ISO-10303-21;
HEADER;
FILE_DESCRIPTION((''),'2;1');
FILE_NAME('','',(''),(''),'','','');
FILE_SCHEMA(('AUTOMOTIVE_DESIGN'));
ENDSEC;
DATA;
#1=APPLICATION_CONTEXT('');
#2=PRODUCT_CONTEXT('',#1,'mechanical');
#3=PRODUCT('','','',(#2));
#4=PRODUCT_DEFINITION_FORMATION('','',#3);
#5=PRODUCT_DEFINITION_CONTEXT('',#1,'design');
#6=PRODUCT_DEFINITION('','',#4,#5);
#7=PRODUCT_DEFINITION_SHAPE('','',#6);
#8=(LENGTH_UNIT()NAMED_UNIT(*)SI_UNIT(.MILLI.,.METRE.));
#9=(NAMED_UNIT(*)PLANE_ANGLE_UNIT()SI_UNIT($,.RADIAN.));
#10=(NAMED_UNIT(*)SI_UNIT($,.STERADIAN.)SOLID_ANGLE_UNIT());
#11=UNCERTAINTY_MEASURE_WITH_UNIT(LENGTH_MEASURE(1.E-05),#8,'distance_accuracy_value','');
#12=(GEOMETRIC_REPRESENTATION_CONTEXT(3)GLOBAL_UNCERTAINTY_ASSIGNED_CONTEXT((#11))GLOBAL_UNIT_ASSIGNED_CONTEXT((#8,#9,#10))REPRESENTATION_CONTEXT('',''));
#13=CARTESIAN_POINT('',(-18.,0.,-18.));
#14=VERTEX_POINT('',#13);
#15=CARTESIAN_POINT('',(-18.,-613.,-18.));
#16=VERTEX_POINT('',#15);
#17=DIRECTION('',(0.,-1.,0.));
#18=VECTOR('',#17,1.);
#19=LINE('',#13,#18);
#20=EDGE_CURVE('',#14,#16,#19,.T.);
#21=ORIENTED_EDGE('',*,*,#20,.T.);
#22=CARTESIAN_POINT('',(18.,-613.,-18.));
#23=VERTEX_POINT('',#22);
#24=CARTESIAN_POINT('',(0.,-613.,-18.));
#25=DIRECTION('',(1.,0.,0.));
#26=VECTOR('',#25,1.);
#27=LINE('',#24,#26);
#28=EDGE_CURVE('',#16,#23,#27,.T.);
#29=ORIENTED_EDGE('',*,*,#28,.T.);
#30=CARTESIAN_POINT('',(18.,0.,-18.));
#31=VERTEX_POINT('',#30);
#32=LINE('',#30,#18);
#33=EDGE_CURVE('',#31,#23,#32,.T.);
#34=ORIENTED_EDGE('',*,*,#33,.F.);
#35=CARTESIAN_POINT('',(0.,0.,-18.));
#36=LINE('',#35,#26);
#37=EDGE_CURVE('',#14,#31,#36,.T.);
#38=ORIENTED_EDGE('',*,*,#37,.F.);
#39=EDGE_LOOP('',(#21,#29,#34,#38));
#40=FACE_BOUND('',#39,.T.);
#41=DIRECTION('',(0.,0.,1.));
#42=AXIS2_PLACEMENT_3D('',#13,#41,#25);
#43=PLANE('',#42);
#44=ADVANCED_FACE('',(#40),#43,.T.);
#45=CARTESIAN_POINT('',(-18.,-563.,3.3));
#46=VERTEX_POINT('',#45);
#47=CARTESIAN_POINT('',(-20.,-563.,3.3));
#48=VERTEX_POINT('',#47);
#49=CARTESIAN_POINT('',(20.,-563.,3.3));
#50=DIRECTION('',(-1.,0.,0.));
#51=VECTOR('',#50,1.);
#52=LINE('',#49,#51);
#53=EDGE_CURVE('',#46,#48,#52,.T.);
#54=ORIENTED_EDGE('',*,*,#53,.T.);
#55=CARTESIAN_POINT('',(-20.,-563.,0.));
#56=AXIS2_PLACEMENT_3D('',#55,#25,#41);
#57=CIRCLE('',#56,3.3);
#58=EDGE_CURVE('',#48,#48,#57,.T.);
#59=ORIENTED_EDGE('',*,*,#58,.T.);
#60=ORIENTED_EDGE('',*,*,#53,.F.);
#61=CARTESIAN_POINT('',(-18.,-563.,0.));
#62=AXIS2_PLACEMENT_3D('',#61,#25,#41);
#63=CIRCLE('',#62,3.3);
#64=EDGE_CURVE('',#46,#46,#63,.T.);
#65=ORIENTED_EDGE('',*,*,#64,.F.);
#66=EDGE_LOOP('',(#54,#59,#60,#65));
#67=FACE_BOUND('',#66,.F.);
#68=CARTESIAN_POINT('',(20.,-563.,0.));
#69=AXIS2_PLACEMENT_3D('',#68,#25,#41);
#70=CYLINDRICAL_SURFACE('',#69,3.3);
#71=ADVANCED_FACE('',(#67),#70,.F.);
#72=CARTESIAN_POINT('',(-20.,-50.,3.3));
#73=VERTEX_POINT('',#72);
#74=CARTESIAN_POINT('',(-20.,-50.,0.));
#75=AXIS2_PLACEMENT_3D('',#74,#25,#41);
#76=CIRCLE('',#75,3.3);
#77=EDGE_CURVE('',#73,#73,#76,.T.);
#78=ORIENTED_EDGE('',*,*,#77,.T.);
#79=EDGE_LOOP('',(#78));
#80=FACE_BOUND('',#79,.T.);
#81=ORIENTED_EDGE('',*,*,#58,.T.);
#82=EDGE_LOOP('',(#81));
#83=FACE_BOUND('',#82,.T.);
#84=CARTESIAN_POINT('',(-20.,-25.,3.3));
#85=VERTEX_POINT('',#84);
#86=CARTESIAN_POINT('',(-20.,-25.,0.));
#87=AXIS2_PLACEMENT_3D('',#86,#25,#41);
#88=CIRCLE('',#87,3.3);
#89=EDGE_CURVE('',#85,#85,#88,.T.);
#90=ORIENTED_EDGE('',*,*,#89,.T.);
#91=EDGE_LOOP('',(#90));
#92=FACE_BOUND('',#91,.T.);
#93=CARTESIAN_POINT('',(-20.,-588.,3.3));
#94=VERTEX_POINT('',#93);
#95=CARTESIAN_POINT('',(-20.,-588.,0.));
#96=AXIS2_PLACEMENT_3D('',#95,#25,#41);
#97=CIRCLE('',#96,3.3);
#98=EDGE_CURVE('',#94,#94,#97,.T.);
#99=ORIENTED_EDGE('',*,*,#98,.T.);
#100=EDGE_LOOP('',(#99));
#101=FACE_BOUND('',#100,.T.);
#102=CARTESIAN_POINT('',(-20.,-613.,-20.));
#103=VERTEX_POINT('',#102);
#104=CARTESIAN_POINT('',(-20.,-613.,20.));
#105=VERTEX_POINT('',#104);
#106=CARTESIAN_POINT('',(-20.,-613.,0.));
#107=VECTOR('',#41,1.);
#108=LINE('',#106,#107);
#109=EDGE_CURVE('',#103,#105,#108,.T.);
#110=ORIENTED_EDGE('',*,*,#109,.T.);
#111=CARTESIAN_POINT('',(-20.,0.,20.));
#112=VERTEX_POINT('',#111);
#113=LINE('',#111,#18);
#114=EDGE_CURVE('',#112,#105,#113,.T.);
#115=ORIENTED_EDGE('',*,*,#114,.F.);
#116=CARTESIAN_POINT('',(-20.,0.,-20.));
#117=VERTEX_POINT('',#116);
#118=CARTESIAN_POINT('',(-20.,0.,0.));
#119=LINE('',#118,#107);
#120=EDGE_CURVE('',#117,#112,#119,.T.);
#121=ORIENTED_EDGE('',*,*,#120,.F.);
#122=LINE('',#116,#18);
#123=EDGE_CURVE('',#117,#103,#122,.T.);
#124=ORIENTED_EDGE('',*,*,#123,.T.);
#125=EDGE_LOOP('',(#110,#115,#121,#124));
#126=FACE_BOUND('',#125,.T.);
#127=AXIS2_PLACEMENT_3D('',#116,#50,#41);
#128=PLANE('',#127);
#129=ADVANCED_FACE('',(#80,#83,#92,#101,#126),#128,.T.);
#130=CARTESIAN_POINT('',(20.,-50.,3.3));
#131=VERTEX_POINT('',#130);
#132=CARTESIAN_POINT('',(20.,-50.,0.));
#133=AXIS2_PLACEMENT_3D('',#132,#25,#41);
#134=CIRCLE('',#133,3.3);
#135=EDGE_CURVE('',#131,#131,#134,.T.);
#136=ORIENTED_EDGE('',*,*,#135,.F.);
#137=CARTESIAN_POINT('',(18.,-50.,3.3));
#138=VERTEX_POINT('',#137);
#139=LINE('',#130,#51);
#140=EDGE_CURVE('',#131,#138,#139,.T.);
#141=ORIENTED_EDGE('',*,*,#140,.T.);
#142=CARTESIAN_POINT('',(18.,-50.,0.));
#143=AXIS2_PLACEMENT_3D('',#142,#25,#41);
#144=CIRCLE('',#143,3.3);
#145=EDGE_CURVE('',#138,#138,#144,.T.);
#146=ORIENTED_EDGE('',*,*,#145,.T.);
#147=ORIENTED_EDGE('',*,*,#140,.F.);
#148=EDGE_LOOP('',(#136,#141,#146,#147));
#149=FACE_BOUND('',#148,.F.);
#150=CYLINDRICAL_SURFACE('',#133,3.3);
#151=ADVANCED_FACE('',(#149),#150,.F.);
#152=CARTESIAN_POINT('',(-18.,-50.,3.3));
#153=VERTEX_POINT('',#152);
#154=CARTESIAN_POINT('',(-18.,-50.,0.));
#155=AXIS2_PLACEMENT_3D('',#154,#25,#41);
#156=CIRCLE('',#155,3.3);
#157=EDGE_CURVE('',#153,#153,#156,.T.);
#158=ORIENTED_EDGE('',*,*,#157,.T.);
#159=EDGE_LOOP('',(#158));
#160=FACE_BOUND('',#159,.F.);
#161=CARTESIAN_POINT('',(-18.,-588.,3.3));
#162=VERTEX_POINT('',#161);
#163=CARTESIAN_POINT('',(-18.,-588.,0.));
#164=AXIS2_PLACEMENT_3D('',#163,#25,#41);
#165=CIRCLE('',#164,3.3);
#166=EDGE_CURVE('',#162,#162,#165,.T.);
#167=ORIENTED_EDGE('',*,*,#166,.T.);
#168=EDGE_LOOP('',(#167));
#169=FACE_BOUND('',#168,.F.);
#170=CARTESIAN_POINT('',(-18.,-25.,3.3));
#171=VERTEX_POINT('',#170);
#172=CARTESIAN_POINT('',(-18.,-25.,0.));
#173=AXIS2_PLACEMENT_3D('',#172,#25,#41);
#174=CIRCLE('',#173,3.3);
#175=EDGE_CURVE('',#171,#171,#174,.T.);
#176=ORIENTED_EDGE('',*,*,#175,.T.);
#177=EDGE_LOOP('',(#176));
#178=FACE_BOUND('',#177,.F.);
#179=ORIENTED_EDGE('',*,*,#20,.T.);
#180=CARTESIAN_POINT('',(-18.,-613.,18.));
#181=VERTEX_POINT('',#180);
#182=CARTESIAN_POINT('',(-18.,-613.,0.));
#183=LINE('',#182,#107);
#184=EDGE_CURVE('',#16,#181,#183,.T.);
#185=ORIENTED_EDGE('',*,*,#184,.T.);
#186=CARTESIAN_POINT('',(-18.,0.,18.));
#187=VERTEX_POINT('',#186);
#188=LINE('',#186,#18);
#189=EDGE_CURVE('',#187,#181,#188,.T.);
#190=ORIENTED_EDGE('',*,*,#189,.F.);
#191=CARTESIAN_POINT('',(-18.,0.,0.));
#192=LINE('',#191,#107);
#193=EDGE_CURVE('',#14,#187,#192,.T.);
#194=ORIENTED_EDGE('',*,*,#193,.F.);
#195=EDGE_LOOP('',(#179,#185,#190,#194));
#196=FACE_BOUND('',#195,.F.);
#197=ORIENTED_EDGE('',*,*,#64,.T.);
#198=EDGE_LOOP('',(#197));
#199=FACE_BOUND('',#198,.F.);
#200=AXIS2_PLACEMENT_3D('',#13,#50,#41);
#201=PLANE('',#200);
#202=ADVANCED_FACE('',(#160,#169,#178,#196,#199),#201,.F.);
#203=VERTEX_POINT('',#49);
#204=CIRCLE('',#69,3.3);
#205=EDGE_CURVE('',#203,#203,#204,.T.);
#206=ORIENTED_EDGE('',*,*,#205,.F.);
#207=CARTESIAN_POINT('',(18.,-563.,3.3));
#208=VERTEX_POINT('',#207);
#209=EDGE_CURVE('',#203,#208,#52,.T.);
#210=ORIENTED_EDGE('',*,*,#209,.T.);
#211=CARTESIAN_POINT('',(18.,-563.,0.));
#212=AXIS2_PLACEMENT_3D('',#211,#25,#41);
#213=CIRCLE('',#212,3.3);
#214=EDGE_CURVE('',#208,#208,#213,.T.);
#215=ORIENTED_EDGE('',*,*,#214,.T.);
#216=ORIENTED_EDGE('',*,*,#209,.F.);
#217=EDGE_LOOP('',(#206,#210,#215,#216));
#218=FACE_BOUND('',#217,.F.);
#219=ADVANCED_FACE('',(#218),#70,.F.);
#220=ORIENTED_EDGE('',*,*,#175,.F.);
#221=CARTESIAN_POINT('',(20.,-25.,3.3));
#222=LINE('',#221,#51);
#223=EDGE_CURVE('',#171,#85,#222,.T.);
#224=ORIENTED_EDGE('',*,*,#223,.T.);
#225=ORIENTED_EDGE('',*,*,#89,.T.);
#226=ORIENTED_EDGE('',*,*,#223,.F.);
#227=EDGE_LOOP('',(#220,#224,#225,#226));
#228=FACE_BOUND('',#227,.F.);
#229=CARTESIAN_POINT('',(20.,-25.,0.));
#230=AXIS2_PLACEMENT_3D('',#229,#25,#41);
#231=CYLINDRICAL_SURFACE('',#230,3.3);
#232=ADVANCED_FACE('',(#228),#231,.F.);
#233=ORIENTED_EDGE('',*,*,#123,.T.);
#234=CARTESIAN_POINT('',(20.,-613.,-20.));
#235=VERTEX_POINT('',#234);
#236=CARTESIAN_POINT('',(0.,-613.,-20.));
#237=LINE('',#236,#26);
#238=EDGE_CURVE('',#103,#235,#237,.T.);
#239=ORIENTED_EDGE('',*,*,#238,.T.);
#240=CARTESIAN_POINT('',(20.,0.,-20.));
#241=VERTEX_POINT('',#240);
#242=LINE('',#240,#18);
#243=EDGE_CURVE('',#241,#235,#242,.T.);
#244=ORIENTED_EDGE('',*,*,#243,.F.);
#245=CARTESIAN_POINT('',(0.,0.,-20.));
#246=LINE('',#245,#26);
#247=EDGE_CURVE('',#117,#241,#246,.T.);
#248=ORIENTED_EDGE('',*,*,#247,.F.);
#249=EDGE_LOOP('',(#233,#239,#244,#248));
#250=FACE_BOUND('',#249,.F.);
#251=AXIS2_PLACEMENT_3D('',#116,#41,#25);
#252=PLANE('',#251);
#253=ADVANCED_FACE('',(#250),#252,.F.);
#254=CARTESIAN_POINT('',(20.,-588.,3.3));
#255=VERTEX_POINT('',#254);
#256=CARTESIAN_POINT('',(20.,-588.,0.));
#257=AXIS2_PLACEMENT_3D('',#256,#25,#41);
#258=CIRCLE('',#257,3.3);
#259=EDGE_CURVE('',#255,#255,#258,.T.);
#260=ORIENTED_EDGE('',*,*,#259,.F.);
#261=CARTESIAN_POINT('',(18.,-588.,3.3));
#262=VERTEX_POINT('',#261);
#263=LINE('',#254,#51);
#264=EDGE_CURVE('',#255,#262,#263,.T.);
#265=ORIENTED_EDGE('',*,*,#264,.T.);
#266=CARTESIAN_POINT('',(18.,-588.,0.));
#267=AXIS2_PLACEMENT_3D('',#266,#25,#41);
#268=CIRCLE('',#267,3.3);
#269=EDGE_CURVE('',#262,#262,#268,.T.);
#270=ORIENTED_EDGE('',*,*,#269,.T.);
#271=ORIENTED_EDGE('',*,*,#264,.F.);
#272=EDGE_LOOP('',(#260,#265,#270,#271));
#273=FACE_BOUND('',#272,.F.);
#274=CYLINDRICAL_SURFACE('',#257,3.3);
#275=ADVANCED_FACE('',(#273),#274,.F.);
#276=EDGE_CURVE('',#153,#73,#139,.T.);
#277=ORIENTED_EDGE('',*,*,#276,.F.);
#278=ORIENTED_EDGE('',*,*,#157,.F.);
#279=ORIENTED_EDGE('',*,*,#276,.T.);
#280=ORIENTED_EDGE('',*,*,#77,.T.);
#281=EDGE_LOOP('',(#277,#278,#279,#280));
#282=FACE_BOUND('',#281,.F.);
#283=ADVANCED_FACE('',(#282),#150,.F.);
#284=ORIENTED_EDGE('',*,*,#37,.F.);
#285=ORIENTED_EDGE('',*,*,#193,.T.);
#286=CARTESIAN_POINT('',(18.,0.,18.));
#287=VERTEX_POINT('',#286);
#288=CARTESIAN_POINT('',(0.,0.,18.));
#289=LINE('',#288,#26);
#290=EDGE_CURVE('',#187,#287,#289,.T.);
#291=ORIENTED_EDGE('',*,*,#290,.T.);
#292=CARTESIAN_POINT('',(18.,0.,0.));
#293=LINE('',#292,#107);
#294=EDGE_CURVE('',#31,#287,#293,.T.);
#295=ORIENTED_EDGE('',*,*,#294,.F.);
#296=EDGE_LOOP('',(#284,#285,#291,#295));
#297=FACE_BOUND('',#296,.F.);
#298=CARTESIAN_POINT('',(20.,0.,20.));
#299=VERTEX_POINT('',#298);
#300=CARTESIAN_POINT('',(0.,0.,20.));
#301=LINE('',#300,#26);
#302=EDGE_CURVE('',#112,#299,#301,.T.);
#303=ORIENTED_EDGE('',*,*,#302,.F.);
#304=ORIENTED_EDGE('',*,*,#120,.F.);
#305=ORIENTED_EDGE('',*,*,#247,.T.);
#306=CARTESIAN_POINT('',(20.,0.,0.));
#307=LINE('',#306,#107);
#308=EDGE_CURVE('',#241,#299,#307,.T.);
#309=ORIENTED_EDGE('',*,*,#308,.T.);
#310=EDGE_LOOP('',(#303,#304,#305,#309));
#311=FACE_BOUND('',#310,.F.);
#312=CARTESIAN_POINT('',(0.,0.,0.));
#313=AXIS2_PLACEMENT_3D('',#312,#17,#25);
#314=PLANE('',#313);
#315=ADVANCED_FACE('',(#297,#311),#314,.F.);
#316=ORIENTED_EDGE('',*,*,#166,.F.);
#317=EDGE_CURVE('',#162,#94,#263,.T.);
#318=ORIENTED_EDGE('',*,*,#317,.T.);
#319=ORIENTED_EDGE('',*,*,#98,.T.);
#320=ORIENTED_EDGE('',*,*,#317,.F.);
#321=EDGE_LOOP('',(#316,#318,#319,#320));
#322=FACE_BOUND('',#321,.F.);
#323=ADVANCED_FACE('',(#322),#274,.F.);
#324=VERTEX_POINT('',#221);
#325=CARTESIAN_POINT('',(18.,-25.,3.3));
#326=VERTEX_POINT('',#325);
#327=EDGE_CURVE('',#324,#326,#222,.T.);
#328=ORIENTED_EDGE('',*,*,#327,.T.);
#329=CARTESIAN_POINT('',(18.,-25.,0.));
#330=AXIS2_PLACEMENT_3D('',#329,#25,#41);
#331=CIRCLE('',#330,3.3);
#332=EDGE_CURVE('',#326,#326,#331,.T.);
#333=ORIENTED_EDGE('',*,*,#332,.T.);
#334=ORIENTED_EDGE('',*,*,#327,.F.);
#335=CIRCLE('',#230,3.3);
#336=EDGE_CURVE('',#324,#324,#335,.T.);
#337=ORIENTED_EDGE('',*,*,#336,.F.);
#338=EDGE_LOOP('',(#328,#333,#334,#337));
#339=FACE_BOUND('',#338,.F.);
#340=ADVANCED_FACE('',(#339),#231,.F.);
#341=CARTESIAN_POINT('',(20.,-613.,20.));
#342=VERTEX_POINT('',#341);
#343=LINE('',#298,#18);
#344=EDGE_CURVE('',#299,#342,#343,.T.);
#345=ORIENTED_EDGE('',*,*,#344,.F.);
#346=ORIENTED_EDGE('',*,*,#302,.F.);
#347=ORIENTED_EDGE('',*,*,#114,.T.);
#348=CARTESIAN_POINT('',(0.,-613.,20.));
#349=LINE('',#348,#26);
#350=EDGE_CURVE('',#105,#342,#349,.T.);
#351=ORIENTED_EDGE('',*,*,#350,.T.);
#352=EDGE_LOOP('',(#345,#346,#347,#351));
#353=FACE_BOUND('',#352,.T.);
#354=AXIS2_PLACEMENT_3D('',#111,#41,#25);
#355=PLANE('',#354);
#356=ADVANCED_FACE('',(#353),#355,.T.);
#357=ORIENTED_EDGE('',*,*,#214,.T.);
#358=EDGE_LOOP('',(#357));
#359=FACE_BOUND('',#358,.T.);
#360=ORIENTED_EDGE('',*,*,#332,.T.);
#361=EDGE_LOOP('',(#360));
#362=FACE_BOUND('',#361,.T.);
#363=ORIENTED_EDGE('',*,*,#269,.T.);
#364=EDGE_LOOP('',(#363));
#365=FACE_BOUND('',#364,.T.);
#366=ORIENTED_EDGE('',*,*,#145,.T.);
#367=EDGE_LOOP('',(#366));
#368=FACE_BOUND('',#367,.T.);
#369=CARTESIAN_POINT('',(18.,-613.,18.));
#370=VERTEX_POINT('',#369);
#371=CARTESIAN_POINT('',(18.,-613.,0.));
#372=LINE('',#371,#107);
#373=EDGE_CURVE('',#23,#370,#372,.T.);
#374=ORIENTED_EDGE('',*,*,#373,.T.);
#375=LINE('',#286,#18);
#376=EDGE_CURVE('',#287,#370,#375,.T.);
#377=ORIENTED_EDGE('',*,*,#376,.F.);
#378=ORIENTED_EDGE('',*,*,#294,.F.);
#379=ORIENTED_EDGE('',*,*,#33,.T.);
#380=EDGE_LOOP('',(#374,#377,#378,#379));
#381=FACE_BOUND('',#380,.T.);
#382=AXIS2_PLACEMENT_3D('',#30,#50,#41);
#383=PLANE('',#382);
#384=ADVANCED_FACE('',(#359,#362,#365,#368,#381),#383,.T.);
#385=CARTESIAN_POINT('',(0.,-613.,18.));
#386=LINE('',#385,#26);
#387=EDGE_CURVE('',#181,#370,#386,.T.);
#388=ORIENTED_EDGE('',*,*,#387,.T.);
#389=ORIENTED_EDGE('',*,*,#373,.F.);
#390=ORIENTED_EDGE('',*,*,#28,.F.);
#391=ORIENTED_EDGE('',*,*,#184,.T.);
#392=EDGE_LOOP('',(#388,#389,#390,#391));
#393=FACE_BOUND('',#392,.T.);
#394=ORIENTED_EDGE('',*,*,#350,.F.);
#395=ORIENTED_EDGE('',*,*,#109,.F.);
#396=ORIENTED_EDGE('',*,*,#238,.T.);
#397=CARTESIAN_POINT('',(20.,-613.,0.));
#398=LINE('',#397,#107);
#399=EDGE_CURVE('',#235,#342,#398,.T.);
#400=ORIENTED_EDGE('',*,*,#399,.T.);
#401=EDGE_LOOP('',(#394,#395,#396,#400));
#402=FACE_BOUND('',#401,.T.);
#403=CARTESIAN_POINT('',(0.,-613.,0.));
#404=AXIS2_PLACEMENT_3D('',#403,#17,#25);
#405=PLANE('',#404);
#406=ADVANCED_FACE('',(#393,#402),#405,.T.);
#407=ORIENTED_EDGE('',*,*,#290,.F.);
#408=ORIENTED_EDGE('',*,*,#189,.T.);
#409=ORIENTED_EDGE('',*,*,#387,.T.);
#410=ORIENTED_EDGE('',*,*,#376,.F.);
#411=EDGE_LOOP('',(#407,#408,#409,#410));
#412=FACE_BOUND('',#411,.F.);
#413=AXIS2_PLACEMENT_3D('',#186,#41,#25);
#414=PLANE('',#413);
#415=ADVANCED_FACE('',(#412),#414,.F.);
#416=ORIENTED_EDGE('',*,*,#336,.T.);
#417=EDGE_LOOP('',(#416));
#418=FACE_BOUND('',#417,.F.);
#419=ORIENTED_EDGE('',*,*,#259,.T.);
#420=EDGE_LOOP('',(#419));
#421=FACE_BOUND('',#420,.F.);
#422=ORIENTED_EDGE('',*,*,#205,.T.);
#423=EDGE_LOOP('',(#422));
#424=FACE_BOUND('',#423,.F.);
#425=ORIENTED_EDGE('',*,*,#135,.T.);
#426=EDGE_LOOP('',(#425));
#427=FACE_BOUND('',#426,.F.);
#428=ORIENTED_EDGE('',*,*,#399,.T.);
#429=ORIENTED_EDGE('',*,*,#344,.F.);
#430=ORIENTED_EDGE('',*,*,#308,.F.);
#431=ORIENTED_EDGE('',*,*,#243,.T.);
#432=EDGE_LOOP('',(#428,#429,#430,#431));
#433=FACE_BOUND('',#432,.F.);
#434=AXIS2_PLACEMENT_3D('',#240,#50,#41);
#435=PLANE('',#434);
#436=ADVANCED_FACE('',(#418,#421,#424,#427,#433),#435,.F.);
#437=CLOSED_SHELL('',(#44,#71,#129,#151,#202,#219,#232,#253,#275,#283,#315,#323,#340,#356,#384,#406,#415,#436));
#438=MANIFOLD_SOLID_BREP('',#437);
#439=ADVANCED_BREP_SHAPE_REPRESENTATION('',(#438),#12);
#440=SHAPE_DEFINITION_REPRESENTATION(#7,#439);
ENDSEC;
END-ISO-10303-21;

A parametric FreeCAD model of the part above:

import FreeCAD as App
import Part
import Sketcher


def add_polygon(sketch, points):
    """Adds a closed chain of lines whose ends are joined by coincident constraints."""
    first, n = sketch.GeometryCount, len(points)
    for a, b in zip(points, points[1:] + points[:1]):
        sketch.addGeometry(Part.LineSegment(App.Vector(*a, 0), App.Vector(*b, 0)), False)
    for i in range(n):
        sketch.addConstraint(Sketcher.Constraint("Coincident", first + i, 2, first + (i + 1) % n, 1))

doc = App.newDocument("Part")
body = doc.addObject("PartDesign::Body", "Body")

# Sketch on XZ plane
sketch1 = body.newObject("Sketcher::SketchObject", "Sketch")
sketch1.AttachmentSupport = (doc.getObject("XZ_Plane"), [""])
sketch1.MapMode = "FlatFace"
add_polygon(sketch1, [(-20, 20), (-20, -20), (20, -20), (20, 20)])  # lines 0-3
add_polygon(sketch1, [(18, -18), (-18, -18), (-18, 18), (18, 18)])  # lines 4-7
sketch1.addConstraint([
    Sketcher.Constraint("Vertical", 0),
    Sketcher.Constraint("Horizontal", 1),
    Sketcher.Constraint("Vertical", 2),
    Sketcher.Constraint("Horizontal", 3),
    Sketcher.Constraint("Horizontal", 4),
    Sketcher.Constraint("Vertical", 5),
    Sketcher.Constraint("Horizontal", 6),
    Sketcher.Constraint("Vertical", 7),
    Sketcher.Constraint("Symmetric", 0, 2, 2, 2, -1, 1),
    Sketcher.Constraint("Symmetric", 4, 2, 6, 2, -1, 1),
    Sketcher.Constraint("Equal", 3, 0),
    Sketcher.Constraint("Equal", 6, 5),
    Sketcher.Constraint("DistanceX", 1, 1, 1, 2, 40.0),
    Sketcher.Constraint("DistanceX", 4, 2, 4, 1, 36.0),
])
pad1 = body.newObject("PartDesign::Pad", "Pad")
pad1.Profile = sketch1
pad1.Length = 613

# Sketch on YZ plane
sketch2 = body.newObject("Sketcher::SketchObject", "Sketch001")
sketch2.AttachmentSupport = (doc.getObject("YZ_Plane"), [""])
sketch2.MapMode = "FlatFace"
sketch2.AttachmentOffset = App.Placement(App.Vector(0, 0, 20), App.Rotation())
sketch2.addGeometry([
    Part.Circle(App.Vector(-25, 0, 0), App.Vector(0, 0, 1), 3.3),
    Part.Circle(App.Vector(-50, 0, 0), App.Vector(0, 0, 1), 3.3),
    Part.Circle(App.Vector(-588, 0, 0), App.Vector(0, 0, 1), 3.3),
    Part.Circle(App.Vector(-563, 0, 0), App.Vector(0, 0, 1), 3.3),
], False)
sketch2.addConstraint([
    Sketcher.Constraint("Equal", 0, 1),
    Sketcher.Constraint("Equal", 1, 2),
    Sketcher.Constraint("Equal", 2, 3),
    Sketcher.Constraint("PointOnObject", 0, 3, -1),
    Sketcher.Constraint("PointOnObject", 1, 3, -1),
    Sketcher.Constraint("PointOnObject", 2, 3, -1),
    Sketcher.Constraint("PointOnObject", 3, 3, -1),
    Sketcher.Constraint("Diameter", 0, 6.6),
    Sketcher.Constraint("DistanceX", 0, 3, -1, 1, 25.0),
    Sketcher.Constraint("DistanceX", 1, 3, -1, 1, 50.0),
    Sketcher.Constraint("DistanceX", 2, 3, -1, 1, 588.0),
    Sketcher.Constraint("DistanceX", 3, 3, -1, 1, 563.0),
])
pocket1 = body.newObject("PartDesign::Pocket", "Pocket")
pocket1.Profile = sketch2
pocket1.Type = "ThroughAll"

doc.recompute()
